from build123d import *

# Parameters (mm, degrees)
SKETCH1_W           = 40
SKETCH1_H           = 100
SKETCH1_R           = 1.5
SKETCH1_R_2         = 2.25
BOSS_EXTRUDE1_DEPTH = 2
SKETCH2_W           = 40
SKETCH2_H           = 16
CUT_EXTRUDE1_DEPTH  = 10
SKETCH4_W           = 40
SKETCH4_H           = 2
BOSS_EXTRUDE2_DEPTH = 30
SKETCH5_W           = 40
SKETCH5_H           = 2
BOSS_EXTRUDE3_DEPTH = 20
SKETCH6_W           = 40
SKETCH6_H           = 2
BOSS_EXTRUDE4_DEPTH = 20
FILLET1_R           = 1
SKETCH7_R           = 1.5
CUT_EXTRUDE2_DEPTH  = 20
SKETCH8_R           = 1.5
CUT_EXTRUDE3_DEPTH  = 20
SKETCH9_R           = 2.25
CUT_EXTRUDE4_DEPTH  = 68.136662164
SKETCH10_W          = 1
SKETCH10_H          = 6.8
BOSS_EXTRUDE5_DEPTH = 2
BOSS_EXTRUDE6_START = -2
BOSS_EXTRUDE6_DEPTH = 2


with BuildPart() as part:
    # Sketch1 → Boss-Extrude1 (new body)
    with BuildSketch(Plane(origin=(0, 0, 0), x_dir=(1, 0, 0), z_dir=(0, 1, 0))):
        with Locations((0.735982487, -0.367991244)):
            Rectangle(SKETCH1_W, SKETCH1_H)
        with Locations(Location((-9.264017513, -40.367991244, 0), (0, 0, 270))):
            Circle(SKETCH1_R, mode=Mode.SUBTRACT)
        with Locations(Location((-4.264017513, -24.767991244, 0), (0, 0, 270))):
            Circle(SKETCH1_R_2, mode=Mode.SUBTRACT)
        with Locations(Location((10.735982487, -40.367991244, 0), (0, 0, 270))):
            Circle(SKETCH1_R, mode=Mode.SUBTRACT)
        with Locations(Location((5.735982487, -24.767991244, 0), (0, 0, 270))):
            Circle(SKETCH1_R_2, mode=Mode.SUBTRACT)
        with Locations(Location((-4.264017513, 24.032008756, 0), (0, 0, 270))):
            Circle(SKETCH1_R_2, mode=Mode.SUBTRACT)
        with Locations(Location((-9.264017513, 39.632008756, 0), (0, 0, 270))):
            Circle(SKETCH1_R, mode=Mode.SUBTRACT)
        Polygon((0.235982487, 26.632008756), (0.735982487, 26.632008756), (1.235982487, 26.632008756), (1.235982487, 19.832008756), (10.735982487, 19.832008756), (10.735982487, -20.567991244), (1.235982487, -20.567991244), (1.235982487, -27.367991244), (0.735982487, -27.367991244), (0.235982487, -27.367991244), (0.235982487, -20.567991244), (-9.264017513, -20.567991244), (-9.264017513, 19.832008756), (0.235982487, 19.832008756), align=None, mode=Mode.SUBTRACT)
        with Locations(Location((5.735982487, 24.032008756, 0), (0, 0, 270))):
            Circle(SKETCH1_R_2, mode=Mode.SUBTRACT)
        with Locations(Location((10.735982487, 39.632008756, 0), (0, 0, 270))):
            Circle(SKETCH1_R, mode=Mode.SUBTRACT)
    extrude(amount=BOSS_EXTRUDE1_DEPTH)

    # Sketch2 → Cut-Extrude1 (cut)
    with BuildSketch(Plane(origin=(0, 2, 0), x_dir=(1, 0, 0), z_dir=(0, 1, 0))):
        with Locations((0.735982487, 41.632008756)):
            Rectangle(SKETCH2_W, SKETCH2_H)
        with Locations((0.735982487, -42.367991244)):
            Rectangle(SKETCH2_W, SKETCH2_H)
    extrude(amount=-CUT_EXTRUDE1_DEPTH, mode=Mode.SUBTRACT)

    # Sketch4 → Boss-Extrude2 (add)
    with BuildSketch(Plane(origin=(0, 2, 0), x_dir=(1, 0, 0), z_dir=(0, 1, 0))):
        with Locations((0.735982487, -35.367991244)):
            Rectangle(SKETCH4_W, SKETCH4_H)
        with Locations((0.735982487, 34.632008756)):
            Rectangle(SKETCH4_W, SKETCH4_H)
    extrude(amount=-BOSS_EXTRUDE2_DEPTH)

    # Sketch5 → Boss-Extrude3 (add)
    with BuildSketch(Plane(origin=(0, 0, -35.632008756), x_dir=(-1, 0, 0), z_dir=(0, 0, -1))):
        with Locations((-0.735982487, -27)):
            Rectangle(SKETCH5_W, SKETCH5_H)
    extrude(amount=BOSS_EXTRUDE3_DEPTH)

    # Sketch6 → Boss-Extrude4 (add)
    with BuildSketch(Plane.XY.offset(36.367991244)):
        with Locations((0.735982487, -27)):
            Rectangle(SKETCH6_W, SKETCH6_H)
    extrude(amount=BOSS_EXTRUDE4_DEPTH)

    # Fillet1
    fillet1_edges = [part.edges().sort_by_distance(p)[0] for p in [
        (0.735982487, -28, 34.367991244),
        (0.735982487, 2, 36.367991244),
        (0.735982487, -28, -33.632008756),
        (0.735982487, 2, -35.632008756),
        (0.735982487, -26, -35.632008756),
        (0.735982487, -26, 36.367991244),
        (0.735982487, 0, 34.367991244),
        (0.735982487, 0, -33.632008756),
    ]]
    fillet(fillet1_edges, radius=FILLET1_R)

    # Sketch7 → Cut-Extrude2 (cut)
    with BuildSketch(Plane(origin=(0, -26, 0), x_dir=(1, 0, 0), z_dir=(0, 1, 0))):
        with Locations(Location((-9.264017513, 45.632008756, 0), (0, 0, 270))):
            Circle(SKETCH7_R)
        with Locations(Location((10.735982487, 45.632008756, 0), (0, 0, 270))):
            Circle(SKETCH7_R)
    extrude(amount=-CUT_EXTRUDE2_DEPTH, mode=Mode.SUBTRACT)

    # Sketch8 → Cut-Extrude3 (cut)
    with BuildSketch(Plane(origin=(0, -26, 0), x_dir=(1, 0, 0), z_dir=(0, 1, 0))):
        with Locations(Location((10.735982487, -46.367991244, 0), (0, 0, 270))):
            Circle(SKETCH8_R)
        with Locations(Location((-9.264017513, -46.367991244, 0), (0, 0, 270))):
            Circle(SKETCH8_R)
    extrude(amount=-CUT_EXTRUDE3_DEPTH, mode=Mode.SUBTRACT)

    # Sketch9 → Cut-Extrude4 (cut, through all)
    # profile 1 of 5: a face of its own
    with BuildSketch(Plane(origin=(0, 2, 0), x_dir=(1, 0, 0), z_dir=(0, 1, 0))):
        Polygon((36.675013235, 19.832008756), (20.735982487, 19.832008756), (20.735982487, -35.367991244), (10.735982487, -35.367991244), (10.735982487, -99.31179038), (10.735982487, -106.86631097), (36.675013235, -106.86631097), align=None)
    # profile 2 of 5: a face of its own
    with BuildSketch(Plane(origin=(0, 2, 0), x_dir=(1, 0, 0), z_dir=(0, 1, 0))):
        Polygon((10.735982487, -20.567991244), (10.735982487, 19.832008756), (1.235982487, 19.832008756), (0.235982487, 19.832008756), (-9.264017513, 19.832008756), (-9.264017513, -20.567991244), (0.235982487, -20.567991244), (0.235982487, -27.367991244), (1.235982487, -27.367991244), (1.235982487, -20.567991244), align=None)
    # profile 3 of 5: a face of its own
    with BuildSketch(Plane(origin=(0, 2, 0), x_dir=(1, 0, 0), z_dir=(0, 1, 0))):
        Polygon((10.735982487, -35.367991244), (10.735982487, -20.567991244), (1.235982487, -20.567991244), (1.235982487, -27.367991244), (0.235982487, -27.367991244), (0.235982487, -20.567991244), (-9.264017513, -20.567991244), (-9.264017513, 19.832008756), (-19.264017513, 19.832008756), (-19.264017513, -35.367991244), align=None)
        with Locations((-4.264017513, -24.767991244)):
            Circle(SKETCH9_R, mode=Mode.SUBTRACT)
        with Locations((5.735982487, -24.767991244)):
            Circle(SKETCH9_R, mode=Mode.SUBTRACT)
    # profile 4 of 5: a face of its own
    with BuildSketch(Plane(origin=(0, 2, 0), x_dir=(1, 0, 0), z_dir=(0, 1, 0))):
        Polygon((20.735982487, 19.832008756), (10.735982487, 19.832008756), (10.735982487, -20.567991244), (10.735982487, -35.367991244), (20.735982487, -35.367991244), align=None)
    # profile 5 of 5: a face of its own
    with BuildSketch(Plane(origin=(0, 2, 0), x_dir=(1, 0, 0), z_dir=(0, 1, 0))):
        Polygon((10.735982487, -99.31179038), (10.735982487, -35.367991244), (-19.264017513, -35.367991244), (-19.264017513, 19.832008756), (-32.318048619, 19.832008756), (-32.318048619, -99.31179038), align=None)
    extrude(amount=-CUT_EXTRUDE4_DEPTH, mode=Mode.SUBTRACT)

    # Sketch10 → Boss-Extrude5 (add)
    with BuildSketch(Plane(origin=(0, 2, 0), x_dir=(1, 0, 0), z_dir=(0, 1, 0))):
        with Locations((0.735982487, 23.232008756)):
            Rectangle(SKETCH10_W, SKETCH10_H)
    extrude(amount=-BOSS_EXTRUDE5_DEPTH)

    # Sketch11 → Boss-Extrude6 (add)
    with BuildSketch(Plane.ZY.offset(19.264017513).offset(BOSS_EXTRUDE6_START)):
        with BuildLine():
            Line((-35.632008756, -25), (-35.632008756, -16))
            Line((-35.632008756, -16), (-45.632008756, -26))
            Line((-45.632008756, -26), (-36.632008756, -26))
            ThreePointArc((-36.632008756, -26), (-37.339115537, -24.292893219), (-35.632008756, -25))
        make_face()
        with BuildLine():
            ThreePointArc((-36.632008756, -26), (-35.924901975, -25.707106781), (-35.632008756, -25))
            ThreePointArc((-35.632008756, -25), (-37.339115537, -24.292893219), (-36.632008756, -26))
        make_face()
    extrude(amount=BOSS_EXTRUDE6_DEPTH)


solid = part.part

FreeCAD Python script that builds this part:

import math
import FreeCAD as App
import Part
import Sketcher
from FreeCAD import Vector
Q = App.Units.Quantity


def edges_at(feature, points):
    """Names of the edges that pass closest to the given points."""
    edges = feature.Shape.Edges
    near = lambda p: min(range(len(edges)), key=lambda i: edges[i].distToShape(Part.Vertex(*p))[0])
    return sorted({f"Edge{near(p) + 1}" for p in points})

doc = App.newDocument("Part")
body = doc.addObject("PartDesign::Body", "Body")

# Sketch on XZ plane
sketch1 = body.newObject("Sketcher::SketchObject", "Sketch")
sketch1.AttachmentSupport = (doc.getObject("XZ_Plane"), [""])
sketch1.MapMode = "FlatFace"
sketch1.addGeometry([
    Part.LineSegment(Vector(-19.264018, -49.632009, 0), Vector(-19.264018, 50.367991, 0)),  # 0
    Part.LineSegment(Vector(-19.264018, 50.367991, 0), Vector(20.735982, 50.367991, 0)),  # 1
    Part.LineSegment(Vector(20.735982, 50.367991, 0), Vector(20.735982, -49.632009, 0)),  # 2
    Part.LineSegment(Vector(20.735982, -49.632009, 0), Vector(-19.264018, -49.632009, 0)),  # 3
    Part.Circle(Vector(-9.264018, 40.367991, 0), Vector(0, 0, 1), 1.5),  # 4
    Part.Circle(Vector(-4.264018, 24.767991, 0), Vector(0, 0, 1), 2.25),  # 5
    Part.Circle(Vector(5.735982, 24.767991, 0), Vector(0, 0, 1), 2.25),  # 6
    Part.Circle(Vector(10.735982, 40.367991, 0), Vector(0, 0, 1), 1.5),  # 7
    Part.Circle(Vector(-9.264018, -39.632009, 0), Vector(0, 0, 1), 1.5),  # 8
    Part.Circle(Vector(-4.264018, -24.032009, 0), Vector(0, 0, 1), 2.25),  # 9
    Part.LineSegment(Vector(0.235982, -19.832009, 0), Vector(0.235982, -26.632009, 0)),  # 10
    Part.LineSegment(Vector(0.235982, -26.632009, 0), Vector(1.235982, -26.632009, 0)),  # 11
    Part.LineSegment(Vector(1.235982, -26.632009, 0), Vector(1.235982, -19.832009, 0)),  # 12
    Part.LineSegment(Vector(1.235982, -19.832009, 0), Vector(10.735982, -19.832009, 0)),  # 13
    Part.LineSegment(Vector(10.735982, -19.832009, 0), Vector(10.735982, 20.567991, 0)),  # 14
    Part.LineSegment(Vector(10.735982, 20.567991, 0), Vector(1.235982, 20.567991, 0)),  # 15
    Part.LineSegment(Vector(1.235982, 20.567991, 0), Vector(1.235982, 27.367991, 0)),  # 16
    Part.LineSegment(Vector(1.235982, 27.367991, 0), Vector(0.235982, 27.367991, 0)),  # 17
    Part.LineSegment(Vector(0.235982, 27.367991, 0), Vector(0.235982, 20.567991, 0)),  # 18
    Part.LineSegment(Vector(0.235982, 20.567991, 0), Vector(-9.264018, 20.567991, 0)),  # 19
    Part.LineSegment(Vector(-9.264018, 20.567991, 0), Vector(-9.264018, -19.832009, 0)),  # 20
    Part.LineSegment(Vector(-9.264018, -19.832009, 0), Vector(0.235982, -19.832009, 0)),  # 21
    Part.Circle(Vector(5.735982, -24.032009, 0), Vector(0, 0, 1), 2.25),  # 22
    Part.Circle(Vector(10.735982, -39.632009, 0), Vector(0, 0, 1), 1.5),  # 23
], False)
sketch1.addConstraint([
    Sketcher.Constraint("Coincident", 0, 2, 1, 1),
    Sketcher.Constraint("Coincident", 1, 2, 2, 1),
    Sketcher.Constraint("Coincident", 2, 2, 3, 1),
    Sketcher.Constraint("Coincident", 3, 2, 0, 1),
    Sketcher.Constraint("Coincident", 10, 2, 11, 1),
    Sketcher.Constraint("Coincident", 11, 2, 12, 1),
    Sketcher.Constraint("Coincident", 12, 2, 13, 1),
    Sketcher.Constraint("Coincident", 13, 2, 14, 1),
    Sketcher.Constraint("Coincident", 14, 2, 15, 1),
    Sketcher.Constraint("Coincident", 15, 2, 16, 1),
    Sketcher.Constraint("Coincident", 16, 2, 17, 1),
    Sketcher.Constraint("Coincident", 17, 2, 18, 1),
    Sketcher.Constraint("Coincident", 18, 2, 19, 1),
    Sketcher.Constraint("Coincident", 19, 2, 20, 1),
    Sketcher.Constraint("Coincident", 20, 2, 21, 1),
    Sketcher.Constraint("Coincident", 21, 2, 10, 1),
    Sketcher.Constraint("Vertical", 0),
    Sketcher.Constraint("Horizontal", 1),
    Sketcher.Constraint("Vertical", 2),
    Sketcher.Constraint("Horizontal", 3),
    Sketcher.Constraint("Vertical", 10),
    Sketcher.Constraint("Horizontal", 11),
    Sketcher.Constraint("Vertical", 12),
    Sketcher.Constraint("Horizontal", 13),
    Sketcher.Constraint("Vertical", 14),
    Sketcher.Constraint("Horizontal", 15),
    Sketcher.Constraint("Vertical", 16),
    Sketcher.Constraint("Horizontal", 17),
    Sketcher.Constraint("Vertical", 18),
    Sketcher.Constraint("Horizontal", 19),
    Sketcher.Constraint("Vertical", 20),
    Sketcher.Constraint("Horizontal", 21),
    Sketcher.Constraint("Equal", 5, 6),
    Sketcher.Constraint("Equal", 4, 7),
    Sketcher.Constraint("Equal", 7, 8),
    Sketcher.Constraint("Equal", 6, 9),
    Sketcher.Constraint("Equal", 9, 22),
    Sketcher.Constraint("Equal", 8, 23),
    Sketcher.Constraint("Horizontal", 5, 3, 6, 3),
    Sketcher.Constraint("Horizontal", 4, 3, 7, 3),
    Sketcher.Constraint("Horizontal", 9, 3, 22, 3),
    Sketcher.Constraint("Horizontal", 8, 3, 23, 3),
    Sketcher.Constraint("Horizontal", 15, 2, 18, 2),
    Sketcher.Constraint("Horizontal", 13, 2, 20, 2),
    Sketcher.Constraint("Vertical", 4, 3, 8, 3),
    Sketcher.Constraint("Vertical", 5, 3, 9, 3),
    Sketcher.Constraint("Vertical", 6, 3, 22, 3),
    Sketcher.Constraint("Vertical", 7, 3, 23, 3),
    Sketcher.Constraint("Vertical", 23, 3, 13, 2),
    Sketcher.Constraint("Vertical", 12, 2, 15, 2),
    Sketcher.Constraint("Vertical", 10, 2, 17, 2),
    Sketcher.Constraint("Vertical", 8, 3, 19, 2),
    Sketcher.Constraint("Equal", 15, 19),
    Sketcher.Constraint("Equal", 12, 16),
    Sketcher.Constraint("Diameter", 4, Q("3 mm")),
    Sketcher.Constraint("Diameter", 5, Q("4.5 mm")),
    Sketcher.Constraint("DistanceX", 1, 1, 1, 2, Q("40 mm")),
    Sketcher.Constraint("DistanceX", 11, 1, 11, 2, Q("1 mm")),
    Sketcher.Constraint("DistanceY", 0, 1, 0, 2, Q("100 mm")),
    Sketcher.Constraint("DistanceX", 13, 1, 13, 2, Q("9.5 mm")),
    Sketcher.Constraint("DistanceY", 10, 2, 10, 1, Q("6.8 mm")),
    Sketcher.Constraint("DistanceY", 14, 1, 14, 2, Q("40.4 mm")),
    Sketcher.Constraint("DistanceX", 4, 3, 5, 3, Q("5 mm")),
    Sketcher.Constraint("DistanceX", 5, 3, 6, 3, Q("10 mm")),
    Sketcher.Constraint("DistanceY", 8, 3, 4, 3, Q("80 mm")),
    Sketcher.Constraint("DistanceX", 0, 2, 4, 3, Q("10 mm")),
    Sketcher.Constraint("DistanceY", 4, 3, 0, 2, Q("10 mm")),
    Sketcher.Constraint("DistanceY", 8, 3, 10, 2, Q("13 mm")),
    Sketcher.Constraint("DistanceY", 5, 3, 4, 3, Q("15.6 mm")),
    Sketcher.Constraint("DistanceY", 8, 3, 9, 3, Q("15.6 mm")),
    Sketcher.Constraint("DistanceY", -1, 1, 4, 3, Q("40.367991 mm")),
    Sketcher.Constraint("DistanceX", 4, 3, -1, 1, Q("9.264018 mm")),
])
pad1 = body.newObject("PartDesign::Pad", "Pad")
pad1.Profile = sketch1
pad1.Length = 2
pad1.Reversed = True

# Sketch on XZ plane
sketch2 = body.newObject("Sketcher::SketchObject", "Sketch001")
sketch2.AttachmentSupport = (doc.getObject("XZ_Plane"), [""])
sketch2.MapMode = "FlatFace"
sketch2.AttachmentOffset = App.Placement(Vector(0, 0, -2), App.Rotation())
sketch2.addGeometry([
    Part.LineSegment(Vector(-19.264018, -49.632009, 0), Vector(-19.264018, -33.632009, 0)),  # 0
    Part.LineSegment(Vector(-19.264018, -33.632009, 0), Vector(20.735982, -33.632009, 0)),  # 1
    Part.LineSegment(Vector(20.735982, -33.632009, 0), Vector(20.735982, -49.632009, 0)),  # 2
    Part.LineSegment(Vector(20.735982, -49.632009, 0), Vector(-19.264018, -49.632009, 0)),  # 3
    Part.LineSegment(Vector(-19.264018, 34.367991, 0), Vector(-19.264018, 50.367991, 0)),  # 4
    Part.LineSegment(Vector(-19.264018, 50.367991, 0), Vector(20.735982, 50.367991, 0)),  # 5
    Part.LineSegment(Vector(20.735982, 50.367991, 0), Vector(20.735982, 34.367991, 0)),  # 6
    Part.LineSegment(Vector(20.735982, 34.367991, 0), Vector(-19.264018, 34.367991, 0)),  # 7
], False)
sketch2.addConstraint([
    Sketcher.Constraint("Coincident", 0, 2, 1, 1),
    Sketcher.Constraint("Coincident", 1, 2, 2, 1),
    Sketcher.Constraint("Coincident", 2, 2, 3, 1),
    Sketcher.Constraint("Coincident", 3, 2, 0, 1),
    Sketcher.Constraint("Coincident", 4, 2, 5, 1),
    Sketcher.Constraint("Coincident", 5, 2, 6, 1),
    Sketcher.Constraint("Coincident", 6, 2, 7, 1),
    Sketcher.Constraint("Coincident", 7, 2, 4, 1),
    Sketcher.Constraint("Vertical", 0),
    Sketcher.Constraint("Horizontal", 1),
    Sketcher.Constraint("Vertical", 2),
    Sketcher.Constraint("Horizontal", 3),
    Sketcher.Constraint("Vertical", 4),
    Sketcher.Constraint("Horizontal", 5),
    Sketcher.Constraint("Vertical", 6),
    Sketcher.Constraint("Horizontal", 7),
    Sketcher.Constraint("Vertical", 3, 2, 4, 2),
    Sketcher.Constraint("Vertical", 2, 2, 5, 2),
    Sketcher.Constraint("Equal", 2, 4),
    Sketcher.Constraint("DistanceX", 1, 1, 1, 2, Q("40 mm")),
    Sketcher.Constraint("DistanceY", 0, 1, 0, 2, Q("16 mm")),
    Sketcher.Constraint("DistanceY", 0, 2, 4, 2, Q("84 mm")),
    Sketcher.Constraint("DistanceY", 0, 2, -1, 1, Q("33.632009 mm")),
    Sketcher.Constraint("DistanceX", 0, 2, -1, 1, Q("19.264018 mm")),
])
pocket1 = body.newObject("PartDesign::Pocket", "Pocket")
pocket1.Profile = sketch2
pocket1.Length = 10
pocket1.Reversed = True

# Sketch on XZ plane
sketch3 = body.newObject("Sketcher::SketchObject", "Sketch002")
sketch3.AttachmentSupport = (doc.getObject("XZ_Plane"), [""])
sketch3.MapMode = "FlatFace"
sketch3.AttachmentOffset = App.Placement(Vector(0, 0, -2), App.Rotation())
sketch3.addGeometry([
    Part.LineSegment(Vector(-19.264018, 34.367991, 0), Vector(-19.264018, 36.367991, 0)),  # 0
    Part.LineSegment(Vector(-19.264018, 36.367991, 0), Vector(20.735982, 36.367991, 0)),  # 1
    Part.LineSegment(Vector(20.735982, 36.367991, 0), Vector(20.735982, 34.367991, 0)),  # 2
    Part.LineSegment(Vector(20.735982, 34.367991, 0), Vector(-19.264018, 34.367991, 0)),  # 3
    Part.LineSegment(Vector(-19.264018, -35.632009, 0), Vector(-19.264018, -33.632009, 0)),  # 4
    Part.LineSegment(Vector(-19.264018, -33.632009, 0), Vector(20.735982, -33.632009, 0)),  # 5
    Part.LineSegment(Vector(20.735982, -33.632009, 0), Vector(20.735982, -35.632009, 0)),  # 6
    Part.LineSegment(Vector(20.735982, -35.632009, 0), Vector(-19.264018, -35.632009, 0)),  # 7
], False)
sketch3.addConstraint([
    Sketcher.Constraint("Coincident", 0, 2, 1, 1),
    Sketcher.Constraint("Coincident", 1, 2, 2, 1),
    Sketcher.Constraint("Coincident", 2, 2, 3, 1),
    Sketcher.Constraint("Coincident", 3, 2, 0, 1),
    Sketcher.Constraint("Coincident", 4, 2, 5, 1),
    Sketcher.Constraint("Coincident", 5, 2, 6, 1),
    Sketcher.Constraint("Coincident", 6, 2, 7, 1),
    Sketcher.Constraint("Coincident", 7, 2, 4, 1),
    Sketcher.Constraint("Vertical", 0),
    Sketcher.Constraint("Horizontal", 1),
    Sketcher.Constraint("Vertical", 2),
    Sketcher.Constraint("Horizontal", 3),
    Sketcher.Constraint("Vertical", 4),
    Sketcher.Constraint("Horizontal", 5),
    Sketcher.Constraint("Vertical", 6),
    Sketcher.Constraint("Horizontal", 7),
    Sketcher.Constraint("Vertical", 3, 2, 4, 2),
    Sketcher.Constraint("Vertical", 2, 2, 5, 2),
    Sketcher.Constraint("Equal", 2, 4),
    Sketcher.Constraint("DistanceX", 1, 1, 1, 2, Q("40 mm")),
    Sketcher.Constraint("DistanceY", 0, 1, 0, 2, Q("2 mm")),
    Sketcher.Constraint("DistanceY", 4, 2, 3, 2, Q("68 mm")),
    Sketcher.Constraint("DistanceY", -1, 1, 0, 2, Q("36.367991 mm")),
    Sketcher.Constraint("DistanceX", 0, 2, -1, 1, Q("19.264018 mm")),
])
pad2 = body.newObject("PartDesign::Pad", "Pad001")
pad2.Profile = sketch3
pad2.Length = 30

# Sketch on XY plane
sketch4 = body.newObject("Sketcher::SketchObject", "Sketch003")
sketch4.AttachmentSupport = (doc.getObject("XY_Plane"), [""])
sketch4.MapMode = "FlatFace"
sketch4.AttachmentOffset = App.Placement(Vector(0, 0, -35.632009), App.Rotation())
sketch4.addGeometry([
    Part.LineSegment(Vector(20.735982, -26, 0), Vector(20.735982, -28, 0)),
    Part.LineSegment(Vector(20.735982, -28, 0), Vector(-19.264018, -28, 0)),
    Part.LineSegment(Vector(-19.264018, -28, 0), Vector(-19.264018, -26, 0)),
    Part.LineSegment(Vector(-19.264018, -26, 0), Vector(20.735982, -26, 0)),
], False)
sketch4.addConstraint([
    Sketcher.Constraint("Coincident", 0, 2, 1, 1),
    Sketcher.Constraint("Coincident", 1, 2, 2, 1),
    Sketcher.Constraint("Coincident", 2, 2, 3, 1),
    Sketcher.Constraint("Coincident", 3, 2, 0, 1),
    Sketcher.Constraint("Vertical", 0),
    Sketcher.Constraint("Horizontal", 1),
    Sketcher.Constraint("Vertical", 2),
    Sketcher.Constraint("Horizontal", 3),
    Sketcher.Constraint("DistanceX", 1, 2, 1, 1, Q("40 mm")),
    Sketcher.Constraint("DistanceY", 0, 2, 0, 1, Q("2 mm")),
    Sketcher.Constraint("DistanceY", 0, 2, -1, 1, Q("28 mm")),
    Sketcher.Constraint("DistanceX", -1, 1, 0, 2, Q("20.735982 mm")),
])
pad3 = body.newObject("PartDesign::Pad", "Pad002")
pad3.Profile = sketch4
pad3.Length = 20
pad3.Reversed = True

# Sketch on XY plane
sketch5 = body.newObject("Sketcher::SketchObject", "Sketch004")
sketch5.AttachmentSupport = (doc.getObject("XY_Plane"), [""])
sketch5.MapMode = "FlatFace"
sketch5.AttachmentOffset = App.Placement(Vector(0, 0, 36.367991), App.Rotation())
sketch5.addGeometry([
    Part.LineSegment(Vector(-19.264018, -26, 0), Vector(-19.264018, -28, 0)),
    Part.LineSegment(Vector(-19.264018, -28, 0), Vector(20.735982, -28, 0)),
    Part.LineSegment(Vector(20.735982, -28, 0), Vector(20.735982, -26, 0)),
    Part.LineSegment(Vector(20.735982, -26, 0), Vector(-19.264018, -26, 0)),
], False)
sketch5.addConstraint([
    Sketcher.Constraint("Coincident", 0, 2, 1, 1),
    Sketcher.Constraint("Coincident", 1, 2, 2, 1),
    Sketcher.Constraint("Coincident", 2, 2, 3, 1),
    Sketcher.Constraint("Coincident", 3, 2, 0, 1),
    Sketcher.Constraint("Vertical", 0),
    Sketcher.Constraint("Horizontal", 1),
    Sketcher.Constraint("Vertical", 2),
    Sketcher.Constraint("Horizontal", 3),
    Sketcher.Constraint("DistanceX", 1, 1, 1, 2, Q("40 mm")),
    Sketcher.Constraint("DistanceY", 0, 2, 0, 1, Q("2 mm")),
    Sketcher.Constraint("DistanceY", 0, 2, -1, 1, Q("28 mm")),
    Sketcher.Constraint("DistanceX", 0, 2, -1, 1, Q("19.264018 mm")),
])
pad4 = body.newObject("PartDesign::Pad", "Pad003")
pad4.Profile = sketch5
pad4.Length = 20
doc.recompute()

fillet = body.newObject("PartDesign::Fillet", "Fillet")
fillet.Base = (pad4, edges_at(pad4, [
    (0.736, -28, 34.368),
    (0.736, 2, 36.368),
    (0.736, -28, -33.632),
    (0.736, 2, -35.632),
    (0.736, -26, -35.632),
    (0.736, -26, 36.368),
    (0.736, 0, 34.368),
    (0.736, 0, -33.632),
]))
fillet.Radius = 1

# Sketch on XZ plane
sketch6 = body.newObject("Sketcher::SketchObject", "Sketch005")
sketch6.AttachmentSupport = (doc.getObject("XZ_Plane"), [""])
sketch6.MapMode = "FlatFace"
sketch6.AttachmentOffset = App.Placement(Vector(0, 0, 26), App.Rotation())
sketch6.addGeometry([
    Part.Circle(Vector(-9.264018, -45.632009, 0), Vector(0, 0, 1), 1.5),
    Part.Circle(Vector(10.735982, -45.632009, 0), Vector(0, 0, 1), 1.5),
], False)
sketch6.addConstraint([
    Sketcher.Constraint("Equal", 0, 1),
    Sketcher.Constraint("Horizontal", 0, 3, 1, 3),
    Sketcher.Constraint("Diameter", 0, Q("3 mm")),
    Sketcher.Constraint("DistanceX", 0, 3, 1, 3, Q("20 mm")),
    Sketcher.Constraint("DistanceY", 0, 3, -1, 1, Q("45.632009 mm")),
    Sketcher.Constraint("DistanceX", 0, 3, -1, 1, Q("9.264018 mm")),
])
pocket2 = body.newObject("PartDesign::Pocket", "Pocket001")
pocket2.Profile = sketch6
pocket2.Length = 20
pocket2.Reversed = True

# Sketch on XZ plane
sketch7 = body.newObject("Sketcher::SketchObject", "Sketch006")
sketch7.AttachmentSupport = (doc.getObject("XZ_Plane"), [""])
sketch7.MapMode = "FlatFace"
sketch7.AttachmentOffset = App.Placement(Vector(0, 0, 26), App.Rotation())
sketch7.addGeometry([
    Part.Circle(Vector(10.735982, 46.367991, 0), Vector(0, 0, 1), 1.5),
    Part.Circle(Vector(-9.264018, 46.367991, 0), Vector(0, 0, 1), 1.5),
], False)
sketch7.addConstraint([
    Sketcher.Constraint("Equal", 0, 1),
    Sketcher.Constraint("Horizontal", 0, 3, 1, 3),
    Sketcher.Constraint("Diameter", 0, Q("3 mm")),
    Sketcher.Constraint("DistanceX", 1, 3, 0, 3, Q("20 mm")),
    Sketcher.Constraint("DistanceY", -1, 1, 0, 3, Q("46.367991 mm")),
    Sketcher.Constraint("DistanceX", -1, 1, 0, 3, Q("10.735982 mm")),
])
pocket3 = body.newObject("PartDesign::Pocket", "Pocket002")
pocket3.Profile = sketch7
pocket3.Length = 20
pocket3.Reversed = True

# Sketch on XZ plane
sketch8 = body.newObject("Sketcher::SketchObject", "Sketch007")
sketch8.AttachmentSupport = (doc.getObject("XZ_Plane"), [""])
sketch8.MapMode = "FlatFace"
sketch8.AttachmentOffset = App.Placement(Vector(0, 0, -2), App.Rotation())
sketch8.addGeometry([
    Part.LineSegment(Vector(36.675013, -19.832009, 0), Vector(-32.318049, -19.832009, 0)),  # 0
    Part.LineSegment(Vector(-32.318049, -19.832009, 0), Vector(-32.318049, 99.31179, 0)),  # 1
    Part.LineSegment(Vector(-32.318049, 99.31179, 0), Vector(10.735982, 99.31179, 0)),  # 2
    Part.LineSegment(Vector(10.735982, 99.31179, 0), Vector(10.735982, 106.866311, 0)),  # 3
    Part.LineSegment(Vector(10.735982, 106.866311, 0), Vector(36.675013, 106.866311, 0)),  # 4
    Part.LineSegment(Vector(36.675013, 106.866311, 0), Vector(36.675013, -19.832009, 0)),  # 5
    Part.Circle(Vector(5.735982, 24.767991, 0), Vector(0, 0, 1), 2.25),  # 6
    Part.Circle(Vector(-4.264018, 24.767991, 0), Vector(0, 0, 1), 2.25),  # 7
], False)
sketch8.addConstraint([
    Sketcher.Constraint("Coincident", 0, 2, 1, 1),
    Sketcher.Constraint("Coincident", 1, 2, 2, 1),
    Sketcher.Constraint("Coincident", 2, 2, 3, 1),
    Sketcher.Constraint("Coincident", 3, 2, 4, 1),
    Sketcher.Constraint("Coincident", 4, 2, 5, 1),
    Sketcher.Constraint("Coincident", 5, 2, 0, 1),
    Sketcher.Constraint("Horizontal", 0),
    Sketcher.Constraint("Vertical", 1),
    Sketcher.Constraint("Horizontal", 2),
    Sketcher.Constraint("Vertical", 3),
    Sketcher.Constraint("Horizontal", 4),
    Sketcher.Constraint("Vertical", 5),
    Sketcher.Constraint("Equal", 6, 7),
    Sketcher.Constraint("Horizontal", 6, 3, 7, 3),
    Sketcher.Constraint("Diameter", 6, Q("4.5 mm")),
    Sketcher.Constraint("DistanceX", 7, 3, 6, 3, Q("10 mm")),
    Sketcher.Constraint("DistanceX", 6, 3, 2, 2, Q("5 mm")),
    Sketcher.Constraint("DistanceY", 0, 2, 7, 3, Q("44.6 mm")),
    Sketcher.Constraint("DistanceY", 1, 1, 1, 2, Q("119.143799 mm")),
    Sketcher.Constraint("DistanceX", 0, 2, 0, 1, Q("68.993062 mm")),
    Sketcher.Constraint("DistanceX", 2, 1, 2, 2, Q("43.054031 mm")),
    Sketcher.Constraint("DistanceY", 3, 1, 3, 2, Q("7.554521 mm")),
    Sketcher.Constraint("DistanceY", -1, 1, 6, 3, Q("24.767991 mm")),
    Sketcher.Constraint("DistanceX", 0, 2, -1, 1, Q("32.318049 mm")),
])
pocket4 = body.newObject("PartDesign::Pocket", "Pocket003")
pocket4.Profile = sketch8
pocket4.Length = 68.136662
pocket4.Reversed = True

# Sketch on XZ plane
sketch9 = body.newObject("Sketcher::SketchObject", "Sketch008")
sketch9.AttachmentSupport = (doc.getObject("XZ_Plane"), [""])
sketch9.MapMode = "FlatFace"
sketch9.AttachmentOffset = App.Placement(Vector(0, 0, -2), App.Rotation())
sketch9.addGeometry([
    Part.LineSegment(Vector(0.235982, -26.632009, 0), Vector(0.235982, -19.832009, 0)),
    Part.LineSegment(Vector(0.235982, -19.832009, 0), Vector(1.235982, -19.832009, 0)),
    Part.LineSegment(Vector(1.235982, -19.832009, 0), Vector(1.235982, -26.632009, 0)),
    Part.LineSegment(Vector(1.235982, -26.632009, 0), Vector(0.235982, -26.632009, 0)),
], False)
sketch9.addConstraint([
    Sketcher.Constraint("Coincident", 0, 2, 1, 1),
    Sketcher.Constraint("Coincident", 1, 2, 2, 1),
    Sketcher.Constraint("Coincident", 2, 2, 3, 1),
    Sketcher.Constraint("Coincident", 3, 2, 0, 1),
    Sketcher.Constraint("Vertical", 0),
    Sketcher.Constraint("Horizontal", 1),
    Sketcher.Constraint("Vertical", 2),
    Sketcher.Constraint("Horizontal", 3),
    Sketcher.Constraint("DistanceX", 1, 1, 1, 2, Q("1 mm")),
    Sketcher.Constraint("DistanceY", 0, 1, 0, 2, Q("6.8 mm")),
    Sketcher.Constraint("DistanceY", 0, 2, -1, 1, Q("19.832009 mm")),
    Sketcher.Constraint("DistanceX", -1, 1, 0, 2, Q("0.235982 mm")),
])
pad5 = body.newObject("PartDesign::Pad", "Pad004")
pad5.Profile = sketch9
pad5.Length = 2

# Sketch on YZ plane
sketch10 = body.newObject("Sketcher::SketchObject", "Sketch009")
sketch10.AttachmentSupport = (doc.getObject("YZ_Plane"), [""])
sketch10.MapMode = "FlatFace"
sketch10.AttachmentOffset = App.Placement(Vector(0, 0, -17.264018), App.Rotation())
sketch10.addGeometry([
    Part.LineSegment(Vector(-25, -35.632009, 0), Vector(-16, -35.632009, 0)),
    Part.LineSegment(Vector(-16, -35.632009, 0), Vector(-26, -45.632009, 0)),
    Part.LineSegment(Vector(-26, -45.632009, 0), Vector(-26, -36.632009, 0)),
    Part.ArcOfCircle(Part.Circle(Vector(-25, -36.632009, 0), Vector(0, 0, 1), 1), math.radians(90), math.radians(180)),
], False)
sketch10.addConstraint([
    Sketcher.Constraint("Coincident", 0, 2, 1, 1),
    Sketcher.Constraint("Coincident", 1, 2, 2, 1),
    Sketcher.Constraint("Tangent", 2, 2, 3, 2),
    Sketcher.Constraint("Tangent", 3, 1, 0, 1),
    Sketcher.Constraint("Horizontal", 0),
    Sketcher.Constraint("Vertical", 2),
    Sketcher.Constraint("Equal", 0, 2),
    Sketcher.Constraint("Radius", 3, Q("1 mm")),
    Sketcher.Constraint("DistanceX", 0, 1, 0, 2, Q("9 mm")),
    Sketcher.Constraint("DistanceX", 3, 3, -1, 1, Q("25 mm")),
    Sketcher.Constraint("DistanceY", 3, 3, -1, 1, Q("36.632009 mm")),
])
pad6 = body.newObject("PartDesign::Pad", "Pad005")
pad6.Profile = sketch10
pad6.Length = 2
pad6.Reversed = True

doc.recompute()
